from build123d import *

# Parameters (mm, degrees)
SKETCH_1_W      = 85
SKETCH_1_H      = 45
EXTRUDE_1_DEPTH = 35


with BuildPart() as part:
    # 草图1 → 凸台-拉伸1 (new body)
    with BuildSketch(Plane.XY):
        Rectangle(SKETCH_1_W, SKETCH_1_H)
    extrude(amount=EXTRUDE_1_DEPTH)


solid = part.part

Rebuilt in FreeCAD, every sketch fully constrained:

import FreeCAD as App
import Part
import Sketcher
from FreeCAD import Vector
Q = App.Units.Quantity

doc = App.newDocument("Part")
body = doc.addObject("PartDesign::Body", "Body")

# Sketch on XY plane
sketch1 = body.newObject("Sketcher::SketchObject", "Sketch")
sketch1.AttachmentSupport = (doc.getObject("XY_Plane"), [""])
sketch1.MapMode = "FlatFace"
sketch1.addGeometry([
    Part.LineSegment(Vector(-42, 22, 0), Vector(-42, -22, 0)),
    Part.LineSegment(Vector(-42, -22, 0), Vector(42, -22, 0)),
    Part.LineSegment(Vector(42, -22, 0), Vector(42, 22, 0)),
    Part.LineSegment(Vector(42, 22, 0), Vector(-42, 22, 0)),
], False)
sketch1.addConstraint([
    Sketcher.Constraint("Coincident", 0, 2, 1, 1),
    Sketcher.Constraint("Coincident", 1, 2, 2, 1),
    Sketcher.Constraint("Coincident", 2, 2, 3, 1),
    Sketcher.Constraint("Coincident", 3, 2, 0, 1),
    Sketcher.Constraint("Vertical", 0),
    Sketcher.Constraint("Horizontal", 1),
    Sketcher.Constraint("Vertical", 2),
    Sketcher.Constraint("Horizontal", 3),
    Sketcher.Constraint("Symmetric", 0, 2, 2, 2, -1, 1),
    Sketcher.Constraint("DistanceX", 1, 1, 1, 2, Q("85 mm")),
    Sketcher.Constraint("DistanceY", 0, 2, 0, 1, Q("45 mm")),
])
pad1 = body.newObject("PartDesign::Pad", "Pad")
pad1.Profile = sketch1
pad1.Length = 35

doc.recompute()
